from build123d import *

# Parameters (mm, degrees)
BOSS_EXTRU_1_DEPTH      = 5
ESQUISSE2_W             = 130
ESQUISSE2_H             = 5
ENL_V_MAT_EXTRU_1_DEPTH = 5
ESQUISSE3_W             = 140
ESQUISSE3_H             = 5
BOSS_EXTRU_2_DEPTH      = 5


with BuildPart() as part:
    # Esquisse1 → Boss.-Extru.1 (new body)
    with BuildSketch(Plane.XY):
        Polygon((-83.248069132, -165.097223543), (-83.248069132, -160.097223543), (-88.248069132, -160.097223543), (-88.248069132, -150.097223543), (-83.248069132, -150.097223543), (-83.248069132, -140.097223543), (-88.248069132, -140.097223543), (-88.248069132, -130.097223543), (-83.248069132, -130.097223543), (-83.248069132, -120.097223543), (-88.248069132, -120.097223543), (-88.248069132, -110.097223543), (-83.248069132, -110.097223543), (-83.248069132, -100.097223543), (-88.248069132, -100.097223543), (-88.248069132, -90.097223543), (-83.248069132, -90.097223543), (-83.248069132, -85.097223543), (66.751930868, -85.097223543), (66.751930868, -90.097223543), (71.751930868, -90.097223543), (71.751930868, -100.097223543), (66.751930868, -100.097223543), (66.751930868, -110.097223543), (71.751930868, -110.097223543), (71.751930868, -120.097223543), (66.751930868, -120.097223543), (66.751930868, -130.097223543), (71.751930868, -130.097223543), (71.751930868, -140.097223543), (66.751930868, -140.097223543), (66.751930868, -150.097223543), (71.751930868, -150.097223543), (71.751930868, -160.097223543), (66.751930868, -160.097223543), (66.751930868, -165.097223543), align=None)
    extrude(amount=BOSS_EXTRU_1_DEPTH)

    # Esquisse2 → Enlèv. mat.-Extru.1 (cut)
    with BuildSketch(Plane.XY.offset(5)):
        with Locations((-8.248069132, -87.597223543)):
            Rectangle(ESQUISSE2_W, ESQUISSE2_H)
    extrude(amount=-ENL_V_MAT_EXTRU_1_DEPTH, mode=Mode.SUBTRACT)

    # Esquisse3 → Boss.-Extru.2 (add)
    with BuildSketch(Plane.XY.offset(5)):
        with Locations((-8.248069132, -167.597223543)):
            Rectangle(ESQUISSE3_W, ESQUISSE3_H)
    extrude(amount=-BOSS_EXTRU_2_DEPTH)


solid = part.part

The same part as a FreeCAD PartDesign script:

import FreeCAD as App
import Part
import Sketcher
Q = App.Units.Quantity

doc = App.newDocument("Part")
params = doc.addObject("Spreadsheet::Sheet", "Params")
for row, (alias, value) in enumerate([
    ("sketch1_width", "150 mm"),
    ("sketch1_width2", "5 mm"),
    ("sketch1_height", "10 mm"),
    ("pad1_length", "5 mm"),
    ("sketch2_width", "130 mm"),
    ("sketch2_height", "5 mm"),
    ("pocket1_length", "5 mm"),
    ("sketch3_width", "140 mm"),
    ("sketch3_height", "5 mm"),
    ("pad2_length", "5 mm"),
], start=1):
    params.set(f"A{row}", alias)
    params.set(f"B{row}", "=" + value)
    params.setAlias(f"B{row}", alias)

body = doc.addObject("PartDesign::Body", "Body")

# Sketch on XY plane
sketch1 = body.newObject("Sketcher::SketchObject", "Sketch")
sketch1.AttachmentSupport = (doc.getObject("XY_Plane"), [""])
sketch1.MapMode = "FlatFace"
sketch1.addGeometry([
    Part.LineSegment(App.Vector(-83, -160, 0), App.Vector(-83, -165, 0)),  # 0
    Part.LineSegment(App.Vector(-83, -165, 0), App.Vector(67, -165, 0)),  # 1
    Part.LineSegment(App.Vector(67, -165, 0), App.Vector(67, -160, 0)),  # 2
    Part.LineSegment(App.Vector(67, -160, 0), App.Vector(72, -160, 0)),  # 3
    Part.LineSegment(App.Vector(72, -160, 0), App.Vector(72, -150, 0)),  # 4
    Part.LineSegment(App.Vector(72, -150, 0), App.Vector(67, -150, 0)),  # 5
    Part.LineSegment(App.Vector(67, -150, 0), App.Vector(67, -140, 0)),  # 6
    Part.LineSegment(App.Vector(67, -140, 0), App.Vector(72, -140, 0)),  # 7
    Part.LineSegment(App.Vector(72, -140, 0), App.Vector(72, -130, 0)),  # 8
    Part.LineSegment(App.Vector(72, -130, 0), App.Vector(67, -130, 0)),  # 9
    Part.LineSegment(App.Vector(67, -130, 0), App.Vector(67, -120, 0)),  # 10
    Part.LineSegment(App.Vector(67, -120, 0), App.Vector(72, -120, 0)),  # 11
    Part.LineSegment(App.Vector(72, -120, 0), App.Vector(72, -110, 0)),  # 12
    Part.LineSegment(App.Vector(72, -110, 0), App.Vector(67, -110, 0)),  # 13
    Part.LineSegment(App.Vector(67, -110, 0), App.Vector(67, -100, 0)),  # 14
    Part.LineSegment(App.Vector(67, -100, 0), App.Vector(72, -100, 0)),  # 15
    Part.LineSegment(App.Vector(72, -100, 0), App.Vector(72, -90, 0)),  # 16
    Part.LineSegment(App.Vector(72, -90, 0), App.Vector(67, -90, 0)),  # 17
    Part.LineSegment(App.Vector(67, -90, 0), App.Vector(67, -85, 0)),  # 18
    Part.LineSegment(App.Vector(67, -85, 0), App.Vector(-83, -85, 0)),  # 19
    Part.LineSegment(App.Vector(-83, -85, 0), App.Vector(-83, -90, 0)),  # 20
    Part.LineSegment(App.Vector(-83, -90, 0), App.Vector(-88, -90, 0)),  # 21
    Part.LineSegment(App.Vector(-88, -90, 0), App.Vector(-88, -100, 0)),  # 22
    Part.LineSegment(App.Vector(-88, -100, 0), App.Vector(-83, -100, 0)),  # 23
    Part.LineSegment(App.Vector(-83, -100, 0), App.Vector(-83, -110, 0)),  # 24
    Part.LineSegment(App.Vector(-83, -110, 0), App.Vector(-88, -110, 0)),  # 25
    Part.LineSegment(App.Vector(-88, -110, 0), App.Vector(-88, -120, 0)),  # 26
    Part.LineSegment(App.Vector(-88, -120, 0), App.Vector(-83, -120, 0)),  # 27
    Part.LineSegment(App.Vector(-83, -120, 0), App.Vector(-83, -130, 0)),  # 28
    Part.LineSegment(App.Vector(-83, -130, 0), App.Vector(-88, -130, 0)),  # 29
    Part.LineSegment(App.Vector(-88, -130, 0), App.Vector(-88, -140, 0)),  # 30
    Part.LineSegment(App.Vector(-88, -140, 0), App.Vector(-83, -140, 0)),  # 31
    Part.LineSegment(App.Vector(-83, -140, 0), App.Vector(-83, -150, 0)),  # 32
    Part.LineSegment(App.Vector(-83, -150, 0), App.Vector(-88, -150, 0)),  # 33
    Part.LineSegment(App.Vector(-88, -150, 0), App.Vector(-88, -160, 0)),  # 34
    Part.LineSegment(App.Vector(-88, -160, 0), App.Vector(-83, -160, 0)),  # 35
], False)
sketch1.addConstraint([
    Sketcher.Constraint("Coincident", 0, 2, 1, 1),
    Sketcher.Constraint("Coincident", 1, 2, 2, 1),
    Sketcher.Constraint("Coincident", 2, 2, 3, 1),
    Sketcher.Constraint("Coincident", 3, 2, 4, 1),
    Sketcher.Constraint("Coincident", 4, 2, 5, 1),
    Sketcher.Constraint("Coincident", 5, 2, 6, 1),
    Sketcher.Constraint("Coincident", 6, 2, 7, 1),
    Sketcher.Constraint("Coincident", 7, 2, 8, 1),
    Sketcher.Constraint("Coincident", 8, 2, 9, 1),
    Sketcher.Constraint("Coincident", 9, 2, 10, 1),
    Sketcher.Constraint("Coincident", 10, 2, 11, 1),
    Sketcher.Constraint("Coincident", 11, 2, 12, 1),
    Sketcher.Constraint("Coincident", 12, 2, 13, 1),
    Sketcher.Constraint("Coincident", 13, 2, 14, 1),
    Sketcher.Constraint("Coincident", 14, 2, 15, 1),
    Sketcher.Constraint("Coincident", 15, 2, 16, 1),
    Sketcher.Constraint("Coincident", 16, 2, 17, 1),
    Sketcher.Constraint("Coincident", 17, 2, 18, 1),
    Sketcher.Constraint("Coincident", 18, 2, 19, 1),
    Sketcher.Constraint("Coincident", 19, 2, 20, 1),
    Sketcher.Constraint("Coincident", 20, 2, 21, 1),
    Sketcher.Constraint("Coincident", 21, 2, 22, 1),
    Sketcher.Constraint("Coincident", 22, 2, 23, 1),
    Sketcher.Constraint("Coincident", 23, 2, 24, 1),
    Sketcher.Constraint("Coincident", 24, 2, 25, 1),
    Sketcher.Constraint("Coincident", 25, 2, 26, 1),
    Sketcher.Constraint("Coincident", 26, 2, 27, 1),
    Sketcher.Constraint("Coincident", 27, 2, 28, 1),
    Sketcher.Constraint("Coincident", 28, 2, 29, 1),
    Sketcher.Constraint("Coincident", 29, 2, 30, 1),
    Sketcher.Constraint("Coincident", 30, 2, 31, 1),
    Sketcher.Constraint("Coincident", 31, 2, 32, 1),
    Sketcher.Constraint("Coincident", 32, 2, 33, 1),
    Sketcher.Constraint("Coincident", 33, 2, 34, 1),
    Sketcher.Constraint("Coincident", 34, 2, 35, 1),
    Sketcher.Constraint("Coincident", 35, 2, 0, 1),
    Sketcher.Constraint("Vertical", 0),
    Sketcher.Constraint("Horizontal", 1),
    Sketcher.Constraint("Vertical", 2),
    Sketcher.Constraint("Horizontal", 3),
    Sketcher.Constraint("Vertical", 4),
    Sketcher.Constraint("Horizontal", 5),
    Sketcher.Constraint("Vertical", 6),
    Sketcher.Constraint("Horizontal", 7),
    Sketcher.Constraint("Vertical", 8),
    Sketcher.Constraint("Horizontal", 9),
    Sketcher.Constraint("Vertical", 10),
    Sketcher.Constraint("Horizontal", 11),
    Sketcher.Constraint("Vertical", 12),
    Sketcher.Constraint("Horizontal", 13),
    Sketcher.Constraint("Vertical", 14),
    Sketcher.Constraint("Horizontal", 15),
    Sketcher.Constraint("Vertical", 16),
    Sketcher.Constraint("Horizontal", 17),
    Sketcher.Constraint("Vertical", 18),
    Sketcher.Constraint("Horizontal", 19),
    Sketcher.Constraint("Vertical", 20),
    Sketcher.Constraint("Horizontal", 21),
    Sketcher.Constraint("Vertical", 22),
    Sketcher.Constraint("Horizontal", 23),
    Sketcher.Constraint("Vertical", 24),
    Sketcher.Constraint("Horizontal", 25),
    Sketcher.Constraint("Vertical", 26),
    Sketcher.Constraint("Horizontal", 27),
    Sketcher.Constraint("Vertical", 28),
    Sketcher.Constraint("Horizontal", 29),
    Sketcher.Constraint("Vertical", 30),
    Sketcher.Constraint("Horizontal", 31),
    Sketcher.Constraint("Vertical", 32),
    Sketcher.Constraint("Horizontal", 33),
    Sketcher.Constraint("Vertical", 34),
    Sketcher.Constraint("Horizontal", 35),
    Sketcher.Constraint("Horizontal", 17, 2, 20, 2),
    Sketcher.Constraint("Horizontal", 15, 2, 22, 2),
    Sketcher.Constraint("Horizontal", 13, 2, 24, 2),
    Sketcher.Constraint("Horizontal", 11, 2, 26, 2),
    Sketcher.Constraint("Horizontal", 9, 2, 28, 2),
    Sketcher.Constraint("Horizontal", 7, 2, 30, 2),
    Sketcher.Constraint("Horizontal", 5, 2, 32, 2),
    Sketcher.Constraint("Horizontal", 3, 2, 34, 2),
    Sketcher.Constraint("Vertical", 2, 2, 5, 2),
    Sketcher.Constraint("Vertical", 4, 2, 7, 2),
    Sketcher.Constraint("Vertical", 6, 2, 9, 2),
    Sketcher.Constraint("Vertical", 8, 2, 11, 2),
    Sketcher.Constraint("Vertical", 10, 2, 13, 2),
    Sketcher.Constraint("Vertical", 12, 2, 15, 2),
    Sketcher.Constraint("Vertical", 14, 2, 17, 2),
    Sketcher.Constraint("Vertical", 0, 2, 19, 2),
    Sketcher.Constraint("Vertical", 20, 2, 23, 2),
    Sketcher.Constraint("Vertical", 22, 2, 25, 2),
    Sketcher.Constraint("Vertical", 24, 2, 27, 2),
    Sketcher.Constraint("Vertical", 26, 2, 29, 2),
    Sketcher.Constraint("Vertical", 28, 2, 31, 2),
    Sketcher.Constraint("Vertical", 30, 2, 33, 2),
    Sketcher.Constraint("Equal", 17, 21),
    Sketcher.Constraint("Equal", 35, 0),
    Sketcher.Constraint("Equal", 4, 6),
    Sketcher.Constraint("Equal", 6, 8),
    Sketcher.Constraint("Equal", 8, 10),
    Sketcher.Constraint("Equal", 10, 12),
    Sketcher.Constraint("Equal", 12, 14),
    Sketcher.Constraint("Equal", 14, 16),
    Sketcher.Constraint("Equal", 2, 18),
    Sketcher.Constraint("DistanceX", 1, 1, 1, 2, Q("150 mm")),
    Sketcher.Constraint("DistanceX", 3, 1, 3, 2, Q("5 mm")),
    Sketcher.Constraint("DistanceY", 4, 1, 4, 2, Q("10 mm")),
    Sketcher.Constraint("DistanceX", 0, 2, -1, 1, Q("83.248069 mm")),
    Sketcher.Constraint("DistanceY", 0, 2, -1, 1, Q("165.097224 mm")),
])
sketch1.setExpression("Constraints[103]", "Params.sketch1_width")
sketch1.setExpression("Constraints[104]", "Params.sketch1_width2")
sketch1.setExpression("Constraints[105]", "Params.sketch1_height")
pad1 = body.newObject("PartDesign::Pad", "Pad")
pad1.Profile = sketch1
pad1.setExpression("Length", "Params.pad1_length")

# Sketch on XY plane
sketch2 = body.newObject("Sketcher::SketchObject", "Sketch001")
sketch2.AttachmentSupport = (doc.getObject("XY_Plane"), [""])
sketch2.MapMode = "FlatFace"
sketch2.AttachmentOffset = App.Placement(App.Vector(0, 0, 5), App.Rotation())
sketch2.addGeometry([
    Part.LineSegment(App.Vector(-73, -85, 0), App.Vector(-73, -90, 0)),
    Part.LineSegment(App.Vector(-73, -90, 0), App.Vector(57, -90, 0)),
    Part.LineSegment(App.Vector(57, -90, 0), App.Vector(57, -85, 0)),
    Part.LineSegment(App.Vector(57, -85, 0), App.Vector(-73, -85, 0)),
], False)
sketch2.addConstraint([
    Sketcher.Constraint("Coincident", 0, 2, 1, 1),
    Sketcher.Constraint("Coincident", 1, 2, 2, 1),
    Sketcher.Constraint("Coincident", 2, 2, 3, 1),
    Sketcher.Constraint("Coincident", 3, 2, 0, 1),
    Sketcher.Constraint("Vertical", 0),
    Sketcher.Constraint("Horizontal", 1),
    Sketcher.Constraint("Vertical", 2),
    Sketcher.Constraint("Horizontal", 3),
    Sketcher.Constraint("DistanceX", 1, 1, 1, 2, Q("130 mm")),
    Sketcher.Constraint("DistanceY", 0, 2, 0, 1, Q("5 mm")),
    Sketcher.Constraint("DistanceX", 0, 2, -1, 1, Q("73.248069 mm")),
    Sketcher.Constraint("DistanceY", 0, 2, -1, 1, Q("90.097224 mm")),
])
sketch2.setExpression("Constraints[8]", "Params.sketch2_width")
sketch2.setExpression("Constraints[9]", "Params.sketch2_height")
pocket1 = body.newObject("PartDesign::Pocket", "Pocket")
pocket1.Profile = sketch2
pocket1.setExpression("Length", "Params.pocket1_length")

# Sketch on XY plane
sketch3 = body.newObject("Sketcher::SketchObject", "Sketch002")
sketch3.AttachmentSupport = (doc.getObject("XY_Plane"), [""])
sketch3.MapMode = "FlatFace"
sketch3.AttachmentOffset = App.Placement(App.Vector(0, 0, 5), App.Rotation())
sketch3.addGeometry([
    Part.LineSegment(App.Vector(-78, -165, 0), App.Vector(-78, -170, 0)),
    Part.LineSegment(App.Vector(-78, -170, 0), App.Vector(62, -170, 0)),
    Part.LineSegment(App.Vector(62, -170, 0), App.Vector(62, -165, 0)),
    Part.LineSegment(App.Vector(62, -165, 0), App.Vector(-78, -165, 0)),
], False)
sketch3.addConstraint([
    Sketcher.Constraint("Coincident", 0, 2, 1, 1),
    Sketcher.Constraint("Coincident", 1, 2, 2, 1),
    Sketcher.Constraint("Coincident", 2, 2, 3, 1),
    Sketcher.Constraint("Coincident", 3, 2, 0, 1),
    Sketcher.Constraint("Vertical", 0),
    Sketcher.Constraint("Horizontal", 1),
    Sketcher.Constraint("Vertical", 2),
    Sketcher.Constraint("Horizontal", 3),
    Sketcher.Constraint("DistanceX", 1, 1, 1, 2, Q("140 mm")),
    Sketcher.Constraint("DistanceY", 0, 2, 0, 1, Q("5 mm")),
    Sketcher.Constraint("DistanceX", 0, 2, -1, 1, Q("78.248069 mm")),
    Sketcher.Constraint("DistanceY", 0, 2, -1, 1, Q("170.097224 mm")),
])
sketch3.setExpression("Constraints[8]", "Params.sketch3_width")
sketch3.setExpression("Constraints[9]", "Params.sketch3_height")
pad2 = body.newObject("PartDesign::Pad", "Pad001")
pad2.Profile = sketch3
pad2.setExpression("Length", "Params.pad2_length")
pad2.Reversed = True

doc.recompute()
